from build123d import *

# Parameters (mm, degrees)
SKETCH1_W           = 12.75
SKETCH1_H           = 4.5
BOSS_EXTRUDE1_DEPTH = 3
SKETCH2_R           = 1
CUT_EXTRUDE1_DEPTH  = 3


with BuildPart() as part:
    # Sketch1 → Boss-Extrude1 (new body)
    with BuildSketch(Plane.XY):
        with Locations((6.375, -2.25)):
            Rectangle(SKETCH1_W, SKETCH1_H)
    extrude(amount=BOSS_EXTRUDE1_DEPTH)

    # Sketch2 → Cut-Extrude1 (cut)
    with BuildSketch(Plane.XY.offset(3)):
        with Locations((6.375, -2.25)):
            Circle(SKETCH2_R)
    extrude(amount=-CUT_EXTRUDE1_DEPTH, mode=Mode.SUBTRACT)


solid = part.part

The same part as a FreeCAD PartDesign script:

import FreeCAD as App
import Part
import Sketcher
Q = App.Units.Quantity

doc = App.newDocument("Part")
body = doc.addObject("PartDesign::Body", "Body")

# Sketch on XY plane
sketch1 = body.newObject("Sketcher::SketchObject", "Sketch")
sketch1.AttachmentSupport = (doc.getObject("XY_Plane"), [""])
sketch1.MapMode = "FlatFace"
sketch1.addGeometry([
    Part.LineSegment(App.Vector(0, 0, 0), App.Vector(0, -4.5, 0)),
    Part.LineSegment(App.Vector(0, -4.5, 0), App.Vector(12.8, -4.5, 0)),
    Part.LineSegment(App.Vector(12.8, -4.5, 0), App.Vector(12.8, 0, 0)),
    Part.LineSegment(App.Vector(12.8, 0, 0), App.Vector(0, 0, 0)),
], False)
sketch1.addConstraint([
    Sketcher.Constraint("Coincident", 0, 2, 1, 1),
    Sketcher.Constraint("Coincident", 1, 2, 2, 1),
    Sketcher.Constraint("Coincident", 2, 2, 3, 1),
    Sketcher.Constraint("Coincident", 3, 2, 0, 1),
    Sketcher.Constraint("Vertical", 0),
    Sketcher.Constraint("Horizontal", 1),
    Sketcher.Constraint("Vertical", 2),
    Sketcher.Constraint("Horizontal", 3),
    Sketcher.Constraint("Coincident", 3, 2, -1, 1),
    Sketcher.Constraint("DistanceY", 0, 2, 0, 1, Q("4.5 mm")),
    Sketcher.Constraint("DistanceX", 1, 1, 1, 2, Q("12.75 mm")),
])
pad1 = body.newObject("PartDesign::Pad", "Pad")
pad1.Profile = sketch1
pad1.Length = 3

# Sketch on XY plane
sketch2 = body.newObject("Sketcher::SketchObject", "Sketch001")
sketch2.AttachmentSupport = (doc.getObject("XY_Plane"), [""])
sketch2.MapMode = "FlatFace"
sketch2.AttachmentOffset = App.Placement(App.Vector(0, 0, 3), App.Rotation())
sketch2.addGeometry(Part.Circle(App.Vector(6.4, -2.2, 0), App.Vector(0, 0, 1), 1), False)
sketch2.addConstraint([
    Sketcher.Constraint("Diameter", 0, Q("2 mm")),
    Sketcher.Constraint("DistanceY", 0, 3, -1, 1, Q("2.25 mm")),
    Sketcher.Constraint("DistanceX", -1, 1, 0, 3, Q("6.375 mm")),
])
pocket1 = body.newObject("PartDesign::Pocket", "Pocket")
pocket1.Profile = sketch2
pocket1.Length = 3

doc.recompute()
